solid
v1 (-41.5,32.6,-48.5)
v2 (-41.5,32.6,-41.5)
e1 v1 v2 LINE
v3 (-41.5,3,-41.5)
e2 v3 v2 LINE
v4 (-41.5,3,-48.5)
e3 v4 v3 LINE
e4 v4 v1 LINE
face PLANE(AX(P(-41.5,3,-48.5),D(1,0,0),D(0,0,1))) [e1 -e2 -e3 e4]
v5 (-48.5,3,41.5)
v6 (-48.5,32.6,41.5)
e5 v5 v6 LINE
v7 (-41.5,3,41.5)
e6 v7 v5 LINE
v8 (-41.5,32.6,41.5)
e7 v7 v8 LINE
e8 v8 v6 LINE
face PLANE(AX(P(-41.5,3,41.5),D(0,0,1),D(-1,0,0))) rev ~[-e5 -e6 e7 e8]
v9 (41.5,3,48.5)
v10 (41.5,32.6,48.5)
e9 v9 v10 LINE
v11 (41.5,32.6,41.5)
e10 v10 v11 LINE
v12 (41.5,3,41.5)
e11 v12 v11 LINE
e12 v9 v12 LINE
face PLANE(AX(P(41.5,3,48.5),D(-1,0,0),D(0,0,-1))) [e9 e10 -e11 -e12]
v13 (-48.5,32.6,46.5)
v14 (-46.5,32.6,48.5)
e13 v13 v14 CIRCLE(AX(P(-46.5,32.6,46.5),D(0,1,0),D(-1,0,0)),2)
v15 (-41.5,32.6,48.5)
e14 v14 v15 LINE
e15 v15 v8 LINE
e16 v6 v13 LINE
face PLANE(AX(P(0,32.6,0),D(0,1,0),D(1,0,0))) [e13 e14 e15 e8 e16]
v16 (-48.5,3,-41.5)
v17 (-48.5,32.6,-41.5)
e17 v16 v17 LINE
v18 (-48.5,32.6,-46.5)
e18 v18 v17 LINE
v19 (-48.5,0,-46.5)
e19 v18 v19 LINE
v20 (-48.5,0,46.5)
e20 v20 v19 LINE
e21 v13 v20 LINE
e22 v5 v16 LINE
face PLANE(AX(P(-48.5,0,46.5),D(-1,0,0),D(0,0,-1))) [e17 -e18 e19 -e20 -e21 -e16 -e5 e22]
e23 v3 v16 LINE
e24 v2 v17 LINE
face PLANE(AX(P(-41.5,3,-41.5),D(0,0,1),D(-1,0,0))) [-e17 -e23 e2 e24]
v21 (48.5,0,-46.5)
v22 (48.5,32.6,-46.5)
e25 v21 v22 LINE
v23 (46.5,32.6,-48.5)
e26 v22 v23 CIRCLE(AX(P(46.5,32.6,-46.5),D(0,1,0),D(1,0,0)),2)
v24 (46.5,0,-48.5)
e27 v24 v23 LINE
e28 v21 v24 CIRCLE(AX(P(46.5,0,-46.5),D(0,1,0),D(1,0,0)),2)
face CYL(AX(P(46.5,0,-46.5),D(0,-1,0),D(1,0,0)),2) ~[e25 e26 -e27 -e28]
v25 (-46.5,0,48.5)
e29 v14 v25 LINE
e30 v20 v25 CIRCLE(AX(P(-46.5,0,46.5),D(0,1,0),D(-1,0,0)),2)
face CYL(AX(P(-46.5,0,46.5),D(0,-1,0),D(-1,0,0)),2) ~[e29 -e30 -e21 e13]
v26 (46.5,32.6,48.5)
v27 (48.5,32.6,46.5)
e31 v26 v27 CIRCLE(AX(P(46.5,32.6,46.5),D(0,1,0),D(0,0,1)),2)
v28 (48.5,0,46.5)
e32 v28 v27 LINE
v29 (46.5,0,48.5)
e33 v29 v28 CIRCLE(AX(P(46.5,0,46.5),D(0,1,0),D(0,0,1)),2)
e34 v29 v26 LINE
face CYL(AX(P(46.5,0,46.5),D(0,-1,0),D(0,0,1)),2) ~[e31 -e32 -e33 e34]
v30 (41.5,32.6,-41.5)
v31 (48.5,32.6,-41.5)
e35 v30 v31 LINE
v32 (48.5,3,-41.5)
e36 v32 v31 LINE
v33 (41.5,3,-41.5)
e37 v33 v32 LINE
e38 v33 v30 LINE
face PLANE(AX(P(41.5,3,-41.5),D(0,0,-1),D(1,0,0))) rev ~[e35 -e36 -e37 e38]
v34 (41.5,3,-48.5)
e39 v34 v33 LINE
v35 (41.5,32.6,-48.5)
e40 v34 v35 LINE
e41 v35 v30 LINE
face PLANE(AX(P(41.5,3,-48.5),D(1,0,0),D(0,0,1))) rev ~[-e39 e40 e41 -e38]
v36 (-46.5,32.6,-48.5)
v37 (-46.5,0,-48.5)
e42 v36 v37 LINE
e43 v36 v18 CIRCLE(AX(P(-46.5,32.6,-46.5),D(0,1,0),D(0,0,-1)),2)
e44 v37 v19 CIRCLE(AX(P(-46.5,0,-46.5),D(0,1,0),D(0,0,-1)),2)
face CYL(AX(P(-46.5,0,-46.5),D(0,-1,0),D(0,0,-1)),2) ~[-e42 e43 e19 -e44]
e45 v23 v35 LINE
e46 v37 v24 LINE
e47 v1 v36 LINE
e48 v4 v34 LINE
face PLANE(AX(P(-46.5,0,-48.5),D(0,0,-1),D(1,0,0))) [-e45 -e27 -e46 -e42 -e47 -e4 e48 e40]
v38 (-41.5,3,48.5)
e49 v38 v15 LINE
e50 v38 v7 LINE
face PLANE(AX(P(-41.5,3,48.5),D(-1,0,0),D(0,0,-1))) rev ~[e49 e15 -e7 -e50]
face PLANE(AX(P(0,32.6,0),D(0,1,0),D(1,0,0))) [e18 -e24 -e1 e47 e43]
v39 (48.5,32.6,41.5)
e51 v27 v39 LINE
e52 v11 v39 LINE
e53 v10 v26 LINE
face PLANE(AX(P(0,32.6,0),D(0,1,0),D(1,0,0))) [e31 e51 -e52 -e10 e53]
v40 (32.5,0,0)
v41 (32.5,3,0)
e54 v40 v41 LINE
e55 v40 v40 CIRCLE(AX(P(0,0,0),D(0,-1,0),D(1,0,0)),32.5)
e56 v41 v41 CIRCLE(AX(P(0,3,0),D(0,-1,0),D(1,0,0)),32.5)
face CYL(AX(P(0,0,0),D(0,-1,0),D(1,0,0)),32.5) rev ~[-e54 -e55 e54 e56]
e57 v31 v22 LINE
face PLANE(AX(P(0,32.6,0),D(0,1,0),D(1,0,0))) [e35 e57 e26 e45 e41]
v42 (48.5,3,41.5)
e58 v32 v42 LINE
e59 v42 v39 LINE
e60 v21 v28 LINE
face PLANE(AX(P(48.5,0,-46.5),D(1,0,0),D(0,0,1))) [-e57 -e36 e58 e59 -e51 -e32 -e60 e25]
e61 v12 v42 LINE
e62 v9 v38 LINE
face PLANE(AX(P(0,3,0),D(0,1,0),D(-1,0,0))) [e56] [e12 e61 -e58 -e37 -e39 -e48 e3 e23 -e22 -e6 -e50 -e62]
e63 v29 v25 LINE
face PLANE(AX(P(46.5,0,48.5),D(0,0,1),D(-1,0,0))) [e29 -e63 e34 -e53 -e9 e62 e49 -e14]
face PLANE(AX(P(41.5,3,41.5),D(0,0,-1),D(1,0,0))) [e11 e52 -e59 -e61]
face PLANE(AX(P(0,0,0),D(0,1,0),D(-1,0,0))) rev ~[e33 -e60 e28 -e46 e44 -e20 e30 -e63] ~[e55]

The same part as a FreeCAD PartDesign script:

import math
import FreeCAD as App
import Part
import Sketcher
from FreeCAD import Vector

doc = App.newDocument("Part")
body = doc.addObject("PartDesign::Body", "Body")

# Sketch on XZ plane
sketch1 = body.newObject("Sketcher::SketchObject", "Sketch")
sketch1.AttachmentSupport = (doc.getObject("XZ_Plane"), [""])
sketch1.MapMode = "FlatFace"
sketch1.addGeometry(Part.LineSegment(Vector(-46.5, 48.5, 0), Vector(46.5, 48.5, 0)), False)
sketch1.addGeometry(Part.ArcOfCircle(Part.Circle(Vector(46.5, 46.5, 0), Vector(0, 0, 1), 2), math.radians(0), math.radians(90)), False)
sketch1.addGeometry(Part.LineSegment(Vector(48.5, 46.5, 0), Vector(48.5, -46.5, 0)), False)
sketch1.addGeometry(Part.ArcOfCircle(Part.Circle(Vector(46.5, -46.5, 0), Vector(0, 0, 1), 2), math.radians(-90), math.radians(0)), False)
sketch1.addGeometry(Part.LineSegment(Vector(46.5, -48.5, 0), Vector(-46.5, -48.5, 0)), False)
sketch1.addGeometry(Part.ArcOfCircle(Part.Circle(Vector(-46.5, -46.5, 0), Vector(0, 0, 1), 2), math.radians(180), math.radians(270)), False)
sketch1.addGeometry(Part.LineSegment(Vector(-48.5, -46.5, 0), Vector(-48.5, 46.5, 0)), False)
sketch1.addGeometry(Part.ArcOfCircle(Part.Circle(Vector(-46.5, 46.5, 0), Vector(0, 0, 1), 2), math.radians(90), math.radians(180)), False)
sketch1.addConstraint(Sketcher.Constraint("Tangent", 0, 2, 1, 2))
sketch1.addConstraint(Sketcher.Constraint("Tangent", 1, 1, 2, 1))
sketch1.addConstraint(Sketcher.Constraint("Tangent", 2, 2, 3, 2))
sketch1.addConstraint(Sketcher.Constraint("Tangent", 3, 1, 4, 1))
sketch1.addConstraint(Sketcher.Constraint("Tangent", 4, 2, 5, 2))
sketch1.addConstraint(Sketcher.Constraint("Tangent", 5, 1, 6, 1))
sketch1.addConstraint(Sketcher.Constraint("Tangent", 6, 2, 7, 2))
sketch1.addConstraint(Sketcher.Constraint("Tangent", 7, 1, 0, 1))
sketch1.addConstraint(Sketcher.Constraint("Horizontal", 0))
sketch1.addConstraint(Sketcher.Constraint("Vertical", 2))
sketch1.addConstraint(Sketcher.Constraint("Horizontal", 4))
sketch1.addConstraint(Sketcher.Constraint("Vertical", 6))
sketch1.addConstraint(Sketcher.Constraint("Equal", 1, 3))
sketch1.addConstraint(Sketcher.Constraint("Equal", 3, 5))
sketch1.addConstraint(Sketcher.Constraint("Equal", 5, 7))
sketch1.addConstraint(Sketcher.Constraint("Symmetric", 1, 3, 5, 3, -1, 1))
sketch1.addConstraint(Sketcher.Constraint("Equal", 4, 2))
sketch1.addConstraint(Sketcher.Constraint("Radius", 1, 2.0))
sketch1.addConstraint(Sketcher.Constraint("DistanceX", 0, 1, 0, 2, 93.0))
pad1 = body.newObject("PartDesign::Pad", "Pad")
pad1.Profile = sketch1
pad1.Length = 3
pad1.Reversed = True

# Sketch on XZ plane
sketch2 = body.newObject("Sketcher::SketchObject", "Sketch001")
sketch2.AttachmentSupport = (doc.getObject("XZ_Plane"), [""])
sketch2.MapMode = "FlatFace"
sketch2.addGeometry(Part.Circle(Vector(0, 0, 0), Vector(0, 0, 1), 32), False)
sketch2.addConstraint(Sketcher.Constraint("Coincident", 0, 3, -1, 1))
sketch2.addConstraint(Sketcher.Constraint("Diameter", 0, 65.0))
pocket1 = body.newObject("PartDesign::Pocket", "Pocket")
pocket1.Profile = sketch2
pocket1.Length = 3

# Sketch on XZ plane
sketch3 = body.newObject("Sketcher::SketchObject", "Sketch002")
sketch3.AttachmentSupport = (doc.getObject("XZ_Plane"), [""])
sketch3.MapMode = "FlatFace"
sketch3.AttachmentOffset = App.Placement(Vector(0, 0, -3), App.Rotation())
sketch3.addGeometry(Part.ArcOfCircle(Part.Circle(Vector(-46.5, 46.5, 0), Vector(0, 0, 1), 2), math.radians(90), math.radians(180)), False)
sketch3.addGeometry(Part.LineSegment(Vector(-46.5, 48.5, 0), Vector(-41.5, 48.5, 0)), False)
sketch3.addGeometry(Part.LineSegment(Vector(-41.5, 48.5, 0), Vector(-41.5, 41.5, 0)), False)
sketch3.addGeometry(Part.LineSegment(Vector(-41.5, 41.5, 0), Vector(-48.5, 41.5, 0)), False)
sketch3.addGeometry(Part.LineSegment(Vector(-48.5, 41.5, 0), Vector(-48.5, 46.5, 0)), False)
sketch3.addGeometry(Part.LineSegment(Vector(41.5, 41.5, 0), Vector(41.5, 48.5, 0)), False)
sketch3.addGeometry(Part.LineSegment(Vector(41.5, 48.5, 0), Vector(46.5, 48.5, 0)), False)
sketch3.addGeometry(Part.ArcOfCircle(Part.Circle(Vector(46.5, 46.5, 0), Vector(0, 0, 1), 2), math.radians(0), math.radians(90)), False)
sketch3.addGeometry(Part.LineSegment(Vector(48.5, 46.5, 0), Vector(48.5, 41.5, 0)), False)
sketch3.addGeometry(Part.LineSegment(Vector(48.5, 41.5, 0), Vector(41.5, 41.5, 0)), False)
sketch3.addGeometry(Part.LineSegment(Vector(-48.5, -46.5, 0), Vector(-48.5, -41.5, 0)), False)
sketch3.addGeometry(Part.LineSegment(Vector(-48.5, -41.5, 0), Vector(-41.5, -41.5, 0)), False)
sketch3.addGeometry(Part.LineSegment(Vector(-41.5, -41.5, 0), Vector(-41.5, -48.5, 0)), False)
sketch3.addGeometry(Part.LineSegment(Vector(-41.5, -48.5, 0), Vector(-46.5, -48.5, 0)), False)
sketch3.addGeometry(Part.ArcOfCircle(Part.Circle(Vector(-46.5, -46.5, 0), Vector(0, 0, 1), 2), math.radians(180), math.radians(270)), False)
sketch3.addGeometry(Part.LineSegment(Vector(41.5, -41.5, 0), Vector(48.5, -41.5, 0)), False)
sketch3.addGeometry(Part.LineSegment(Vector(48.5, -41.5, 0), Vector(48.5, -46.5, 0)), False)
sketch3.addGeometry(Part.ArcOfCircle(Part.Circle(Vector(46.5, -46.5, 0), Vector(0, 0, 1), 2), math.radians(-90), math.radians(0)), False)
sketch3.addGeometry(Part.LineSegment(Vector(46.5, -48.5, 0), Vector(41.5, -48.5, 0)), False)
sketch3.addGeometry(Part.LineSegment(Vector(41.5, -48.5, 0), Vector(41.5, -41.5, 0)), False)
sketch3.addConstraint(Sketcher.Constraint("Tangent", 0, 1, 1, 1))
sketch3.addConstraint(Sketcher.Constraint("Coincident", 1, 2, 2, 1))
sketch3.addConstraint(Sketcher.Constraint("Coincident", 2, 2, 3, 1))
sketch3.addConstraint(Sketcher.Constraint("Coincident", 3, 2, 4, 1))
sketch3.addConstraint(Sketcher.Constraint("Tangent", 4, 2, 0, 2))
sketch3.addConstraint(Sketcher.Constraint("Coincident", 5, 2, 6, 1))
sketch3.addConstraint(Sketcher.Constraint("Tangent", 6, 2, 7, 2))
sketch3.addConstraint(Sketcher.Constraint("Tangent", 7, 1, 8, 1))
sketch3.addConstraint(Sketcher.Constraint("Coincident", 8, 2, 9, 1))
sketch3.addConstraint(Sketcher.Constraint("Coincident", 9, 2, 5, 1))
sketch3.addConstraint(Sketcher.Constraint("Coincident", 10, 2, 11, 1))
sketch3.addConstraint(Sketcher.Constraint("Coincident", 11, 2, 12, 1))
sketch3.addConstraint(Sketcher.Constraint("Coincident", 12, 2, 13, 1))
sketch3.addConstraint(Sketcher.Constraint("Tangent", 13, 2, 14, 2))
sketch3.addConstraint(Sketcher.Constraint("Tangent", 14, 1, 10, 1))
sketch3.addConstraint(Sketcher.Constraint("Coincident", 15, 2, 16, 1))
sketch3.addConstraint(Sketcher.Constraint("Tangent", 16, 2, 17, 2))
sketch3.addConstraint(Sketcher.Constraint("Tangent", 17, 1, 18, 1))
sketch3.addConstraint(Sketcher.Constraint("Coincident", 18, 2, 19, 1))
sketch3.addConstraint(Sketcher.Constraint("Coincident", 19, 2, 15, 1))
sketch3.addConstraint(Sketcher.Constraint("Horizontal", 1))
sketch3.addConstraint(Sketcher.Constraint("Vertical", 2))
sketch3.addConstraint(Sketcher.Constraint("Horizontal", 3))
sketch3.addConstraint(Sketcher.Constraint("Vertical", 4))
sketch3.addConstraint(Sketcher.Constraint("Vertical", 5))
sketch3.addConstraint(Sketcher.Constraint("Horizontal", 6))
sketch3.addConstraint(Sketcher.Constraint("Vertical", 8))
sketch3.addConstraint(Sketcher.Constraint("Horizontal", 9))
sketch3.addConstraint(Sketcher.Constraint("Vertical", 10))
sketch3.addConstraint(Sketcher.Constraint("Horizontal", 11))
sketch3.addConstraint(Sketcher.Constraint("Vertical", 12))
sketch3.addConstraint(Sketcher.Constraint("Horizontal", 13))
sketch3.addConstraint(Sketcher.Constraint("Horizontal", 15))
sketch3.addConstraint(Sketcher.Constraint("Vertical", 16))
sketch3.addConstraint(Sketcher.Constraint("Horizontal", 18))
sketch3.addConstraint(Sketcher.Constraint("Vertical", 19))
sketch3.addConstraint(Sketcher.Constraint("Equal", 0, 7))
sketch3.addConstraint(Sketcher.Constraint("Equal", 7, 14))
sketch3.addConstraint(Sketcher.Constraint("Equal", 14, 17))
sketch3.addConstraint(Sketcher.Constraint("Symmetric", 7, 3, 14, 3, -1, 1))
sketch3.addConstraint(Sketcher.Constraint("Symmetric", 0, 3, 17, 3, -1, 1))
sketch3.addConstraint(Sketcher.Constraint("Symmetric", 9, 2, 11, 2, -1, 1))
sketch3.addConstraint(Sketcher.Constraint("Symmetric", 2, 2, 19, 2, -1, 1))
sketch3.addConstraint(Sketcher.Constraint("Symmetric", 0, 3, 7, 3, -2))
sketch3.addConstraint(Sketcher.Constraint("Symmetric", 2, 2, 9, 2, -2))
sketch3.addConstraint(Sketcher.Constraint("Equal", 15, 2))
sketch3.addConstraint(Sketcher.Constraint("Radius", 0, 2.0))
sketch3.addConstraint(Sketcher.Constraint("DistanceX", 3, 2, 3, 1, 7.0))
sketch3.addConstraint(Sketcher.Constraint("DistanceX", 0, 3, 7, 3, 93.0))
sketch3.addConstraint(Sketcher.Constraint("DistanceY", 14, 3, 0, 3, 93.0))
pad2 = body.newObject("PartDesign::Pad", "Pad001")
pad2.Profile = sketch3
pad2.Length = 29.6
pad2.Reversed = True

doc.recompute()
